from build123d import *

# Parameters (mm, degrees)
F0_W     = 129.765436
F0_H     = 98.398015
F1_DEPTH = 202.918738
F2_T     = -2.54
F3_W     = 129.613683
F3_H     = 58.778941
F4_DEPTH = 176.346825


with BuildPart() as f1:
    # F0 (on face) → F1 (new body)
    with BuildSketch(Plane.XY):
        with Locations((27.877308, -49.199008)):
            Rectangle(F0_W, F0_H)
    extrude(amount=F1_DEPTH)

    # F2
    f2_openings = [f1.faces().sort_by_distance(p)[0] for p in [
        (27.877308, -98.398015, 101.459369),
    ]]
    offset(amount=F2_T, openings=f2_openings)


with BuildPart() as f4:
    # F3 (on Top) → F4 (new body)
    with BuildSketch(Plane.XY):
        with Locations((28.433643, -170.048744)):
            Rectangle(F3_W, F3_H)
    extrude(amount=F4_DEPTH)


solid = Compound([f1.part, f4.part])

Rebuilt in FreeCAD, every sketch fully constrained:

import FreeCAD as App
import Part
import Sketcher
from FreeCAD import Vector
Q = App.Units.Quantity


def faces_at(feature, points):
    """Names of the faces that lie closest to the given points."""
    faces = feature.Shape.Faces
    near = lambda p: min(range(len(faces)), key=lambda i: faces[i].distToShape(Part.Vertex(*p))[0])
    return sorted({f"Face{near(p) + 1}" for p in points})

doc = App.newDocument("Part")
params = doc.addObject("Spreadsheet::Sheet", "Params")
for row, (alias, value) in enumerate([
    ("pad1_length", "202.918738 mm"),
    ("thickness_wall", "0.1 in"),
    ("pad2_length", "176.346825 mm"),
], start=1):
    params.set(f"A{row}", alias)
    params.set(f"B{row}", "=" + value)
    params.setAlias(f"B{row}", alias)

body = doc.addObject("PartDesign::Body", "Body")

# Sketch on XY plane
sketch1 = body.newObject("Sketcher::SketchObject", "Sketch")
sketch1.AttachmentSupport = (doc.getObject("XY_Plane"), [""])
sketch1.MapMode = "FlatFace"
sketch1.addGeometry([
    Part.LineSegment(Vector(-37, 0, 0), Vector(-37, -98, 0)),
    Part.LineSegment(Vector(-37, -98, 0), Vector(93, -98, 0)),
    Part.LineSegment(Vector(93, -98, 0), Vector(93, 0, 0)),
    Part.LineSegment(Vector(93, 0, 0), Vector(-37, 0, 0)),
], False)
sketch1.addConstraint([
    Sketcher.Constraint("Coincident", 0, 2, 1, 1),
    Sketcher.Constraint("Coincident", 1, 2, 2, 1),
    Sketcher.Constraint("Coincident", 2, 2, 3, 1),
    Sketcher.Constraint("Coincident", 3, 2, 0, 1),
    Sketcher.Constraint("Vertical", 0),
    Sketcher.Constraint("Horizontal", 1),
    Sketcher.Constraint("Vertical", 2),
    Sketcher.Constraint("Horizontal", 3),
    Sketcher.Constraint("PointOnObject", 2, 2, -1),
    Sketcher.Constraint("DistanceX", 1, 1, 1, 2, Q("129.765436 mm")),
    Sketcher.Constraint("DistanceY", 0, 2, 0, 1, Q("98.398015 mm")),
    Sketcher.Constraint("DistanceX", 0, 2, -1, 1, Q("37.00541 mm")),
])
pad1 = body.newObject("PartDesign::Pad", "Pad")
pad1.Profile = sketch1
pad1.setExpression("Length", "Params.pad1_length")
doc.recompute()

thickness = body.newObject("PartDesign::Thickness", "Thickness")
thickness.Base = (pad1, faces_at(pad1, [(27.877, -98.398, 101.459)]))
thickness.setExpression("Value", "Params.thickness_wall")
thickness.Reversed = True
thickness.Join = "Arc"
body2 = doc.addObject("PartDesign::Body", "Body001")

# Sketch on XY plane
sketch2 = body2.newObject("Sketcher::SketchObject", "Sketch001")
sketch2.AttachmentSupport = (doc.getObject("XY_Plane001"), [""])
sketch2.MapMode = "FlatFace"
sketch2.addGeometry([
    Part.LineSegment(Vector(-36, -141, 0), Vector(-36, -199, 0)),
    Part.LineSegment(Vector(-36, -199, 0), Vector(93, -199, 0)),
    Part.LineSegment(Vector(93, -199, 0), Vector(93, -141, 0)),
    Part.LineSegment(Vector(93, -141, 0), Vector(-36, -141, 0)),
], False)
sketch2.addConstraint([
    Sketcher.Constraint("Coincident", 0, 2, 1, 1),
    Sketcher.Constraint("Coincident", 1, 2, 2, 1),
    Sketcher.Constraint("Coincident", 2, 2, 3, 1),
    Sketcher.Constraint("Coincident", 3, 2, 0, 1),
    Sketcher.Constraint("Vertical", 0),
    Sketcher.Constraint("Horizontal", 1),
    Sketcher.Constraint("Vertical", 2),
    Sketcher.Constraint("Horizontal", 3),
    Sketcher.Constraint("DistanceY", 0, 2, 0, 1, Q("58.778941 mm")),
    Sketcher.Constraint("DistanceX", 0, 2, -1, 1, Q("36.373199 mm")),
    Sketcher.Constraint("DistanceX", 1, 1, 1, 2, Q("129.613683 mm")),
    Sketcher.Constraint("DistanceY", 0, 2, -1, 1, Q("199.438214 mm")),
])
pad2 = body2.newObject("PartDesign::Pad", "Pad001")
pad2.Profile = sketch2
pad2.setExpression("Length", "Params.pad2_length")

doc.recompute()
